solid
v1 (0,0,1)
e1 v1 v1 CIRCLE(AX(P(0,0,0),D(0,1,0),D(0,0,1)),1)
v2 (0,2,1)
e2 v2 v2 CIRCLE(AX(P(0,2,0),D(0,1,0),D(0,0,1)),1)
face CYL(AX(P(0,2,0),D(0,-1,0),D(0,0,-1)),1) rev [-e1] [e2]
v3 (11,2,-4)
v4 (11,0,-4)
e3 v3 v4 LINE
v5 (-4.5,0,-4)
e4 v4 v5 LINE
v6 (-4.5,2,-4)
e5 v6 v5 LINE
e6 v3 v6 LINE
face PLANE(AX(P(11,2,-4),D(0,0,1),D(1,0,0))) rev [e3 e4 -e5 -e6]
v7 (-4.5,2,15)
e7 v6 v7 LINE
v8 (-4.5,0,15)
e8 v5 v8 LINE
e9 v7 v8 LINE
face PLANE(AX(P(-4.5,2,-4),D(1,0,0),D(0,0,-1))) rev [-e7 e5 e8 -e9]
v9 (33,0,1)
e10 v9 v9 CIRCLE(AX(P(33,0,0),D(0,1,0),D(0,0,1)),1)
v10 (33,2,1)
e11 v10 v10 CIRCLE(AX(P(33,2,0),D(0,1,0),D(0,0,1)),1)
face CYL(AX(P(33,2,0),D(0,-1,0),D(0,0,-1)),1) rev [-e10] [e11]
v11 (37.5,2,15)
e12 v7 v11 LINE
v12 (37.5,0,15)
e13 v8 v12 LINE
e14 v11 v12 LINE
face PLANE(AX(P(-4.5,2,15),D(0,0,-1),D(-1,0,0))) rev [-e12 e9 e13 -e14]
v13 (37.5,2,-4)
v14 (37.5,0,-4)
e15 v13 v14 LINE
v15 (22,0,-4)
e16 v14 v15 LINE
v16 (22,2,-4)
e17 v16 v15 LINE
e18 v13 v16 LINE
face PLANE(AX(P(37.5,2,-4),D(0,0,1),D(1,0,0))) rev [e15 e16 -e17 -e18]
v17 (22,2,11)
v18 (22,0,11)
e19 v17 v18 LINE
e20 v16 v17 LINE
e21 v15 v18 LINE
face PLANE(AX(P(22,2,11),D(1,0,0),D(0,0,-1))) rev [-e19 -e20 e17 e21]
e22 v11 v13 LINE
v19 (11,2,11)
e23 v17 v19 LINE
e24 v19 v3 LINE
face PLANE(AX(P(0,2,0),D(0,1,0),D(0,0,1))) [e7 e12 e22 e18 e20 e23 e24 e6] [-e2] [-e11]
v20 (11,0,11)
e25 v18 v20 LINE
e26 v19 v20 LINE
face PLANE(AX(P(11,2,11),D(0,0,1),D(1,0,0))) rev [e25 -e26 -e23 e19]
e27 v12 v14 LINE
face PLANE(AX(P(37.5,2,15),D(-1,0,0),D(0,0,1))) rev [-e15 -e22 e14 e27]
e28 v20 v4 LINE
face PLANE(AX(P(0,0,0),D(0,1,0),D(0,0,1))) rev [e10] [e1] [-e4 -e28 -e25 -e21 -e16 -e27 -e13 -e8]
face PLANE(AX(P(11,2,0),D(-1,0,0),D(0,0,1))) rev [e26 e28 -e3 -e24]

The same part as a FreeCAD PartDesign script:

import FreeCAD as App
import Part
import Sketcher

V = App.Vector

doc = App.newDocument("Part")
body = doc.addObject("PartDesign::Body", "Body")

sketch1 = body.newObject("Sketcher::SketchObject", "Sketch")
sketch1.AttachmentSupport = (doc.getObject("XZ_Plane"), [""])
sketch1.MapMode = "FlatFace"
sketch1.addGeometry([
    Part.LineSegment(V(11, 11, 0), V(11, -4, 0)),
    Part.LineSegment(V(11, -4, 0), V(-4.5, -4, 0)),
    Part.LineSegment(V(-4.5, -4, 0), V(-4.5, 15, 0)),
    Part.LineSegment(V(-4.5, 15, 0), V(37.5, 15, 0)),
    Part.LineSegment(V(37.5, 15, 0), V(37.5, -4, 0)),
    Part.LineSegment(V(37.5, -4, 0), V(22, -4, 0)),
    Part.LineSegment(V(22, -4, 0), V(22, 11, 0)),
    Part.LineSegment(V(22, 11, 0), V(11, 11, 0)),
    Part.Circle(V(33, 0, 0), V(0, 0, 1), 1),
    Part.Circle(V(0, 0, 0), V(0, 0, 1), 1),
], False)
sketch1.addConstraint([
    Sketcher.Constraint("Coincident", 0, 2, 1, 1),
    Sketcher.Constraint("Coincident", 1, 2, 2, 1),
    Sketcher.Constraint("Coincident", 2, 2, 3, 1),
    Sketcher.Constraint("Coincident", 3, 2, 4, 1),
    Sketcher.Constraint("Coincident", 4, 2, 5, 1),
    Sketcher.Constraint("Coincident", 5, 2, 6, 1),
    Sketcher.Constraint("Coincident", 6, 2, 7, 1),
    Sketcher.Constraint("Coincident", 7, 2, 0, 1),
    Sketcher.Constraint("Vertical", 0),
    Sketcher.Constraint("Horizontal", 1),
    Sketcher.Constraint("Vertical", 2),
    Sketcher.Constraint("Horizontal", 3),
    Sketcher.Constraint("Vertical", 4),
    Sketcher.Constraint("Horizontal", 5),
    Sketcher.Constraint("Vertical", 6),
    Sketcher.Constraint("Horizontal", 7),
    Sketcher.Constraint("Coincident", 9, 3, -1, 1),
    Sketcher.Constraint("Equal", 8, 9),
    Sketcher.Constraint("PointOnObject", 8, 3, -1),
    Sketcher.Constraint("Horizontal", 1, 2, 4, 2),
    Sketcher.Constraint("Equal", 1, 5),
    Sketcher.Constraint("Diameter", 8, 2.0),
    Sketcher.Constraint("DistanceX", 3, 1, 3, 2, 42.0),
    Sketcher.Constraint("DistanceX", 7, 2, 7, 1, 11.0),
    Sketcher.Constraint("DistanceY", 0, 2, 0, 1, 15.0),
    Sketcher.Constraint("DistanceY", 2, 1, 2, 2, 19.0),
    Sketcher.Constraint("DistanceX", -1, 1, 8, 3, 33.0),
    Sketcher.Constraint("DistanceX", -1, 1, 0, 2, 11.0),
    Sketcher.Constraint("DistanceY", 0, 2, -1, 1, 4.0),
])
pad1 = body.newObject("PartDesign::Pad", "Pad")
pad1.Profile = sketch1
pad1.Length = 2
pad1.Reversed = True

doc.recompute()
